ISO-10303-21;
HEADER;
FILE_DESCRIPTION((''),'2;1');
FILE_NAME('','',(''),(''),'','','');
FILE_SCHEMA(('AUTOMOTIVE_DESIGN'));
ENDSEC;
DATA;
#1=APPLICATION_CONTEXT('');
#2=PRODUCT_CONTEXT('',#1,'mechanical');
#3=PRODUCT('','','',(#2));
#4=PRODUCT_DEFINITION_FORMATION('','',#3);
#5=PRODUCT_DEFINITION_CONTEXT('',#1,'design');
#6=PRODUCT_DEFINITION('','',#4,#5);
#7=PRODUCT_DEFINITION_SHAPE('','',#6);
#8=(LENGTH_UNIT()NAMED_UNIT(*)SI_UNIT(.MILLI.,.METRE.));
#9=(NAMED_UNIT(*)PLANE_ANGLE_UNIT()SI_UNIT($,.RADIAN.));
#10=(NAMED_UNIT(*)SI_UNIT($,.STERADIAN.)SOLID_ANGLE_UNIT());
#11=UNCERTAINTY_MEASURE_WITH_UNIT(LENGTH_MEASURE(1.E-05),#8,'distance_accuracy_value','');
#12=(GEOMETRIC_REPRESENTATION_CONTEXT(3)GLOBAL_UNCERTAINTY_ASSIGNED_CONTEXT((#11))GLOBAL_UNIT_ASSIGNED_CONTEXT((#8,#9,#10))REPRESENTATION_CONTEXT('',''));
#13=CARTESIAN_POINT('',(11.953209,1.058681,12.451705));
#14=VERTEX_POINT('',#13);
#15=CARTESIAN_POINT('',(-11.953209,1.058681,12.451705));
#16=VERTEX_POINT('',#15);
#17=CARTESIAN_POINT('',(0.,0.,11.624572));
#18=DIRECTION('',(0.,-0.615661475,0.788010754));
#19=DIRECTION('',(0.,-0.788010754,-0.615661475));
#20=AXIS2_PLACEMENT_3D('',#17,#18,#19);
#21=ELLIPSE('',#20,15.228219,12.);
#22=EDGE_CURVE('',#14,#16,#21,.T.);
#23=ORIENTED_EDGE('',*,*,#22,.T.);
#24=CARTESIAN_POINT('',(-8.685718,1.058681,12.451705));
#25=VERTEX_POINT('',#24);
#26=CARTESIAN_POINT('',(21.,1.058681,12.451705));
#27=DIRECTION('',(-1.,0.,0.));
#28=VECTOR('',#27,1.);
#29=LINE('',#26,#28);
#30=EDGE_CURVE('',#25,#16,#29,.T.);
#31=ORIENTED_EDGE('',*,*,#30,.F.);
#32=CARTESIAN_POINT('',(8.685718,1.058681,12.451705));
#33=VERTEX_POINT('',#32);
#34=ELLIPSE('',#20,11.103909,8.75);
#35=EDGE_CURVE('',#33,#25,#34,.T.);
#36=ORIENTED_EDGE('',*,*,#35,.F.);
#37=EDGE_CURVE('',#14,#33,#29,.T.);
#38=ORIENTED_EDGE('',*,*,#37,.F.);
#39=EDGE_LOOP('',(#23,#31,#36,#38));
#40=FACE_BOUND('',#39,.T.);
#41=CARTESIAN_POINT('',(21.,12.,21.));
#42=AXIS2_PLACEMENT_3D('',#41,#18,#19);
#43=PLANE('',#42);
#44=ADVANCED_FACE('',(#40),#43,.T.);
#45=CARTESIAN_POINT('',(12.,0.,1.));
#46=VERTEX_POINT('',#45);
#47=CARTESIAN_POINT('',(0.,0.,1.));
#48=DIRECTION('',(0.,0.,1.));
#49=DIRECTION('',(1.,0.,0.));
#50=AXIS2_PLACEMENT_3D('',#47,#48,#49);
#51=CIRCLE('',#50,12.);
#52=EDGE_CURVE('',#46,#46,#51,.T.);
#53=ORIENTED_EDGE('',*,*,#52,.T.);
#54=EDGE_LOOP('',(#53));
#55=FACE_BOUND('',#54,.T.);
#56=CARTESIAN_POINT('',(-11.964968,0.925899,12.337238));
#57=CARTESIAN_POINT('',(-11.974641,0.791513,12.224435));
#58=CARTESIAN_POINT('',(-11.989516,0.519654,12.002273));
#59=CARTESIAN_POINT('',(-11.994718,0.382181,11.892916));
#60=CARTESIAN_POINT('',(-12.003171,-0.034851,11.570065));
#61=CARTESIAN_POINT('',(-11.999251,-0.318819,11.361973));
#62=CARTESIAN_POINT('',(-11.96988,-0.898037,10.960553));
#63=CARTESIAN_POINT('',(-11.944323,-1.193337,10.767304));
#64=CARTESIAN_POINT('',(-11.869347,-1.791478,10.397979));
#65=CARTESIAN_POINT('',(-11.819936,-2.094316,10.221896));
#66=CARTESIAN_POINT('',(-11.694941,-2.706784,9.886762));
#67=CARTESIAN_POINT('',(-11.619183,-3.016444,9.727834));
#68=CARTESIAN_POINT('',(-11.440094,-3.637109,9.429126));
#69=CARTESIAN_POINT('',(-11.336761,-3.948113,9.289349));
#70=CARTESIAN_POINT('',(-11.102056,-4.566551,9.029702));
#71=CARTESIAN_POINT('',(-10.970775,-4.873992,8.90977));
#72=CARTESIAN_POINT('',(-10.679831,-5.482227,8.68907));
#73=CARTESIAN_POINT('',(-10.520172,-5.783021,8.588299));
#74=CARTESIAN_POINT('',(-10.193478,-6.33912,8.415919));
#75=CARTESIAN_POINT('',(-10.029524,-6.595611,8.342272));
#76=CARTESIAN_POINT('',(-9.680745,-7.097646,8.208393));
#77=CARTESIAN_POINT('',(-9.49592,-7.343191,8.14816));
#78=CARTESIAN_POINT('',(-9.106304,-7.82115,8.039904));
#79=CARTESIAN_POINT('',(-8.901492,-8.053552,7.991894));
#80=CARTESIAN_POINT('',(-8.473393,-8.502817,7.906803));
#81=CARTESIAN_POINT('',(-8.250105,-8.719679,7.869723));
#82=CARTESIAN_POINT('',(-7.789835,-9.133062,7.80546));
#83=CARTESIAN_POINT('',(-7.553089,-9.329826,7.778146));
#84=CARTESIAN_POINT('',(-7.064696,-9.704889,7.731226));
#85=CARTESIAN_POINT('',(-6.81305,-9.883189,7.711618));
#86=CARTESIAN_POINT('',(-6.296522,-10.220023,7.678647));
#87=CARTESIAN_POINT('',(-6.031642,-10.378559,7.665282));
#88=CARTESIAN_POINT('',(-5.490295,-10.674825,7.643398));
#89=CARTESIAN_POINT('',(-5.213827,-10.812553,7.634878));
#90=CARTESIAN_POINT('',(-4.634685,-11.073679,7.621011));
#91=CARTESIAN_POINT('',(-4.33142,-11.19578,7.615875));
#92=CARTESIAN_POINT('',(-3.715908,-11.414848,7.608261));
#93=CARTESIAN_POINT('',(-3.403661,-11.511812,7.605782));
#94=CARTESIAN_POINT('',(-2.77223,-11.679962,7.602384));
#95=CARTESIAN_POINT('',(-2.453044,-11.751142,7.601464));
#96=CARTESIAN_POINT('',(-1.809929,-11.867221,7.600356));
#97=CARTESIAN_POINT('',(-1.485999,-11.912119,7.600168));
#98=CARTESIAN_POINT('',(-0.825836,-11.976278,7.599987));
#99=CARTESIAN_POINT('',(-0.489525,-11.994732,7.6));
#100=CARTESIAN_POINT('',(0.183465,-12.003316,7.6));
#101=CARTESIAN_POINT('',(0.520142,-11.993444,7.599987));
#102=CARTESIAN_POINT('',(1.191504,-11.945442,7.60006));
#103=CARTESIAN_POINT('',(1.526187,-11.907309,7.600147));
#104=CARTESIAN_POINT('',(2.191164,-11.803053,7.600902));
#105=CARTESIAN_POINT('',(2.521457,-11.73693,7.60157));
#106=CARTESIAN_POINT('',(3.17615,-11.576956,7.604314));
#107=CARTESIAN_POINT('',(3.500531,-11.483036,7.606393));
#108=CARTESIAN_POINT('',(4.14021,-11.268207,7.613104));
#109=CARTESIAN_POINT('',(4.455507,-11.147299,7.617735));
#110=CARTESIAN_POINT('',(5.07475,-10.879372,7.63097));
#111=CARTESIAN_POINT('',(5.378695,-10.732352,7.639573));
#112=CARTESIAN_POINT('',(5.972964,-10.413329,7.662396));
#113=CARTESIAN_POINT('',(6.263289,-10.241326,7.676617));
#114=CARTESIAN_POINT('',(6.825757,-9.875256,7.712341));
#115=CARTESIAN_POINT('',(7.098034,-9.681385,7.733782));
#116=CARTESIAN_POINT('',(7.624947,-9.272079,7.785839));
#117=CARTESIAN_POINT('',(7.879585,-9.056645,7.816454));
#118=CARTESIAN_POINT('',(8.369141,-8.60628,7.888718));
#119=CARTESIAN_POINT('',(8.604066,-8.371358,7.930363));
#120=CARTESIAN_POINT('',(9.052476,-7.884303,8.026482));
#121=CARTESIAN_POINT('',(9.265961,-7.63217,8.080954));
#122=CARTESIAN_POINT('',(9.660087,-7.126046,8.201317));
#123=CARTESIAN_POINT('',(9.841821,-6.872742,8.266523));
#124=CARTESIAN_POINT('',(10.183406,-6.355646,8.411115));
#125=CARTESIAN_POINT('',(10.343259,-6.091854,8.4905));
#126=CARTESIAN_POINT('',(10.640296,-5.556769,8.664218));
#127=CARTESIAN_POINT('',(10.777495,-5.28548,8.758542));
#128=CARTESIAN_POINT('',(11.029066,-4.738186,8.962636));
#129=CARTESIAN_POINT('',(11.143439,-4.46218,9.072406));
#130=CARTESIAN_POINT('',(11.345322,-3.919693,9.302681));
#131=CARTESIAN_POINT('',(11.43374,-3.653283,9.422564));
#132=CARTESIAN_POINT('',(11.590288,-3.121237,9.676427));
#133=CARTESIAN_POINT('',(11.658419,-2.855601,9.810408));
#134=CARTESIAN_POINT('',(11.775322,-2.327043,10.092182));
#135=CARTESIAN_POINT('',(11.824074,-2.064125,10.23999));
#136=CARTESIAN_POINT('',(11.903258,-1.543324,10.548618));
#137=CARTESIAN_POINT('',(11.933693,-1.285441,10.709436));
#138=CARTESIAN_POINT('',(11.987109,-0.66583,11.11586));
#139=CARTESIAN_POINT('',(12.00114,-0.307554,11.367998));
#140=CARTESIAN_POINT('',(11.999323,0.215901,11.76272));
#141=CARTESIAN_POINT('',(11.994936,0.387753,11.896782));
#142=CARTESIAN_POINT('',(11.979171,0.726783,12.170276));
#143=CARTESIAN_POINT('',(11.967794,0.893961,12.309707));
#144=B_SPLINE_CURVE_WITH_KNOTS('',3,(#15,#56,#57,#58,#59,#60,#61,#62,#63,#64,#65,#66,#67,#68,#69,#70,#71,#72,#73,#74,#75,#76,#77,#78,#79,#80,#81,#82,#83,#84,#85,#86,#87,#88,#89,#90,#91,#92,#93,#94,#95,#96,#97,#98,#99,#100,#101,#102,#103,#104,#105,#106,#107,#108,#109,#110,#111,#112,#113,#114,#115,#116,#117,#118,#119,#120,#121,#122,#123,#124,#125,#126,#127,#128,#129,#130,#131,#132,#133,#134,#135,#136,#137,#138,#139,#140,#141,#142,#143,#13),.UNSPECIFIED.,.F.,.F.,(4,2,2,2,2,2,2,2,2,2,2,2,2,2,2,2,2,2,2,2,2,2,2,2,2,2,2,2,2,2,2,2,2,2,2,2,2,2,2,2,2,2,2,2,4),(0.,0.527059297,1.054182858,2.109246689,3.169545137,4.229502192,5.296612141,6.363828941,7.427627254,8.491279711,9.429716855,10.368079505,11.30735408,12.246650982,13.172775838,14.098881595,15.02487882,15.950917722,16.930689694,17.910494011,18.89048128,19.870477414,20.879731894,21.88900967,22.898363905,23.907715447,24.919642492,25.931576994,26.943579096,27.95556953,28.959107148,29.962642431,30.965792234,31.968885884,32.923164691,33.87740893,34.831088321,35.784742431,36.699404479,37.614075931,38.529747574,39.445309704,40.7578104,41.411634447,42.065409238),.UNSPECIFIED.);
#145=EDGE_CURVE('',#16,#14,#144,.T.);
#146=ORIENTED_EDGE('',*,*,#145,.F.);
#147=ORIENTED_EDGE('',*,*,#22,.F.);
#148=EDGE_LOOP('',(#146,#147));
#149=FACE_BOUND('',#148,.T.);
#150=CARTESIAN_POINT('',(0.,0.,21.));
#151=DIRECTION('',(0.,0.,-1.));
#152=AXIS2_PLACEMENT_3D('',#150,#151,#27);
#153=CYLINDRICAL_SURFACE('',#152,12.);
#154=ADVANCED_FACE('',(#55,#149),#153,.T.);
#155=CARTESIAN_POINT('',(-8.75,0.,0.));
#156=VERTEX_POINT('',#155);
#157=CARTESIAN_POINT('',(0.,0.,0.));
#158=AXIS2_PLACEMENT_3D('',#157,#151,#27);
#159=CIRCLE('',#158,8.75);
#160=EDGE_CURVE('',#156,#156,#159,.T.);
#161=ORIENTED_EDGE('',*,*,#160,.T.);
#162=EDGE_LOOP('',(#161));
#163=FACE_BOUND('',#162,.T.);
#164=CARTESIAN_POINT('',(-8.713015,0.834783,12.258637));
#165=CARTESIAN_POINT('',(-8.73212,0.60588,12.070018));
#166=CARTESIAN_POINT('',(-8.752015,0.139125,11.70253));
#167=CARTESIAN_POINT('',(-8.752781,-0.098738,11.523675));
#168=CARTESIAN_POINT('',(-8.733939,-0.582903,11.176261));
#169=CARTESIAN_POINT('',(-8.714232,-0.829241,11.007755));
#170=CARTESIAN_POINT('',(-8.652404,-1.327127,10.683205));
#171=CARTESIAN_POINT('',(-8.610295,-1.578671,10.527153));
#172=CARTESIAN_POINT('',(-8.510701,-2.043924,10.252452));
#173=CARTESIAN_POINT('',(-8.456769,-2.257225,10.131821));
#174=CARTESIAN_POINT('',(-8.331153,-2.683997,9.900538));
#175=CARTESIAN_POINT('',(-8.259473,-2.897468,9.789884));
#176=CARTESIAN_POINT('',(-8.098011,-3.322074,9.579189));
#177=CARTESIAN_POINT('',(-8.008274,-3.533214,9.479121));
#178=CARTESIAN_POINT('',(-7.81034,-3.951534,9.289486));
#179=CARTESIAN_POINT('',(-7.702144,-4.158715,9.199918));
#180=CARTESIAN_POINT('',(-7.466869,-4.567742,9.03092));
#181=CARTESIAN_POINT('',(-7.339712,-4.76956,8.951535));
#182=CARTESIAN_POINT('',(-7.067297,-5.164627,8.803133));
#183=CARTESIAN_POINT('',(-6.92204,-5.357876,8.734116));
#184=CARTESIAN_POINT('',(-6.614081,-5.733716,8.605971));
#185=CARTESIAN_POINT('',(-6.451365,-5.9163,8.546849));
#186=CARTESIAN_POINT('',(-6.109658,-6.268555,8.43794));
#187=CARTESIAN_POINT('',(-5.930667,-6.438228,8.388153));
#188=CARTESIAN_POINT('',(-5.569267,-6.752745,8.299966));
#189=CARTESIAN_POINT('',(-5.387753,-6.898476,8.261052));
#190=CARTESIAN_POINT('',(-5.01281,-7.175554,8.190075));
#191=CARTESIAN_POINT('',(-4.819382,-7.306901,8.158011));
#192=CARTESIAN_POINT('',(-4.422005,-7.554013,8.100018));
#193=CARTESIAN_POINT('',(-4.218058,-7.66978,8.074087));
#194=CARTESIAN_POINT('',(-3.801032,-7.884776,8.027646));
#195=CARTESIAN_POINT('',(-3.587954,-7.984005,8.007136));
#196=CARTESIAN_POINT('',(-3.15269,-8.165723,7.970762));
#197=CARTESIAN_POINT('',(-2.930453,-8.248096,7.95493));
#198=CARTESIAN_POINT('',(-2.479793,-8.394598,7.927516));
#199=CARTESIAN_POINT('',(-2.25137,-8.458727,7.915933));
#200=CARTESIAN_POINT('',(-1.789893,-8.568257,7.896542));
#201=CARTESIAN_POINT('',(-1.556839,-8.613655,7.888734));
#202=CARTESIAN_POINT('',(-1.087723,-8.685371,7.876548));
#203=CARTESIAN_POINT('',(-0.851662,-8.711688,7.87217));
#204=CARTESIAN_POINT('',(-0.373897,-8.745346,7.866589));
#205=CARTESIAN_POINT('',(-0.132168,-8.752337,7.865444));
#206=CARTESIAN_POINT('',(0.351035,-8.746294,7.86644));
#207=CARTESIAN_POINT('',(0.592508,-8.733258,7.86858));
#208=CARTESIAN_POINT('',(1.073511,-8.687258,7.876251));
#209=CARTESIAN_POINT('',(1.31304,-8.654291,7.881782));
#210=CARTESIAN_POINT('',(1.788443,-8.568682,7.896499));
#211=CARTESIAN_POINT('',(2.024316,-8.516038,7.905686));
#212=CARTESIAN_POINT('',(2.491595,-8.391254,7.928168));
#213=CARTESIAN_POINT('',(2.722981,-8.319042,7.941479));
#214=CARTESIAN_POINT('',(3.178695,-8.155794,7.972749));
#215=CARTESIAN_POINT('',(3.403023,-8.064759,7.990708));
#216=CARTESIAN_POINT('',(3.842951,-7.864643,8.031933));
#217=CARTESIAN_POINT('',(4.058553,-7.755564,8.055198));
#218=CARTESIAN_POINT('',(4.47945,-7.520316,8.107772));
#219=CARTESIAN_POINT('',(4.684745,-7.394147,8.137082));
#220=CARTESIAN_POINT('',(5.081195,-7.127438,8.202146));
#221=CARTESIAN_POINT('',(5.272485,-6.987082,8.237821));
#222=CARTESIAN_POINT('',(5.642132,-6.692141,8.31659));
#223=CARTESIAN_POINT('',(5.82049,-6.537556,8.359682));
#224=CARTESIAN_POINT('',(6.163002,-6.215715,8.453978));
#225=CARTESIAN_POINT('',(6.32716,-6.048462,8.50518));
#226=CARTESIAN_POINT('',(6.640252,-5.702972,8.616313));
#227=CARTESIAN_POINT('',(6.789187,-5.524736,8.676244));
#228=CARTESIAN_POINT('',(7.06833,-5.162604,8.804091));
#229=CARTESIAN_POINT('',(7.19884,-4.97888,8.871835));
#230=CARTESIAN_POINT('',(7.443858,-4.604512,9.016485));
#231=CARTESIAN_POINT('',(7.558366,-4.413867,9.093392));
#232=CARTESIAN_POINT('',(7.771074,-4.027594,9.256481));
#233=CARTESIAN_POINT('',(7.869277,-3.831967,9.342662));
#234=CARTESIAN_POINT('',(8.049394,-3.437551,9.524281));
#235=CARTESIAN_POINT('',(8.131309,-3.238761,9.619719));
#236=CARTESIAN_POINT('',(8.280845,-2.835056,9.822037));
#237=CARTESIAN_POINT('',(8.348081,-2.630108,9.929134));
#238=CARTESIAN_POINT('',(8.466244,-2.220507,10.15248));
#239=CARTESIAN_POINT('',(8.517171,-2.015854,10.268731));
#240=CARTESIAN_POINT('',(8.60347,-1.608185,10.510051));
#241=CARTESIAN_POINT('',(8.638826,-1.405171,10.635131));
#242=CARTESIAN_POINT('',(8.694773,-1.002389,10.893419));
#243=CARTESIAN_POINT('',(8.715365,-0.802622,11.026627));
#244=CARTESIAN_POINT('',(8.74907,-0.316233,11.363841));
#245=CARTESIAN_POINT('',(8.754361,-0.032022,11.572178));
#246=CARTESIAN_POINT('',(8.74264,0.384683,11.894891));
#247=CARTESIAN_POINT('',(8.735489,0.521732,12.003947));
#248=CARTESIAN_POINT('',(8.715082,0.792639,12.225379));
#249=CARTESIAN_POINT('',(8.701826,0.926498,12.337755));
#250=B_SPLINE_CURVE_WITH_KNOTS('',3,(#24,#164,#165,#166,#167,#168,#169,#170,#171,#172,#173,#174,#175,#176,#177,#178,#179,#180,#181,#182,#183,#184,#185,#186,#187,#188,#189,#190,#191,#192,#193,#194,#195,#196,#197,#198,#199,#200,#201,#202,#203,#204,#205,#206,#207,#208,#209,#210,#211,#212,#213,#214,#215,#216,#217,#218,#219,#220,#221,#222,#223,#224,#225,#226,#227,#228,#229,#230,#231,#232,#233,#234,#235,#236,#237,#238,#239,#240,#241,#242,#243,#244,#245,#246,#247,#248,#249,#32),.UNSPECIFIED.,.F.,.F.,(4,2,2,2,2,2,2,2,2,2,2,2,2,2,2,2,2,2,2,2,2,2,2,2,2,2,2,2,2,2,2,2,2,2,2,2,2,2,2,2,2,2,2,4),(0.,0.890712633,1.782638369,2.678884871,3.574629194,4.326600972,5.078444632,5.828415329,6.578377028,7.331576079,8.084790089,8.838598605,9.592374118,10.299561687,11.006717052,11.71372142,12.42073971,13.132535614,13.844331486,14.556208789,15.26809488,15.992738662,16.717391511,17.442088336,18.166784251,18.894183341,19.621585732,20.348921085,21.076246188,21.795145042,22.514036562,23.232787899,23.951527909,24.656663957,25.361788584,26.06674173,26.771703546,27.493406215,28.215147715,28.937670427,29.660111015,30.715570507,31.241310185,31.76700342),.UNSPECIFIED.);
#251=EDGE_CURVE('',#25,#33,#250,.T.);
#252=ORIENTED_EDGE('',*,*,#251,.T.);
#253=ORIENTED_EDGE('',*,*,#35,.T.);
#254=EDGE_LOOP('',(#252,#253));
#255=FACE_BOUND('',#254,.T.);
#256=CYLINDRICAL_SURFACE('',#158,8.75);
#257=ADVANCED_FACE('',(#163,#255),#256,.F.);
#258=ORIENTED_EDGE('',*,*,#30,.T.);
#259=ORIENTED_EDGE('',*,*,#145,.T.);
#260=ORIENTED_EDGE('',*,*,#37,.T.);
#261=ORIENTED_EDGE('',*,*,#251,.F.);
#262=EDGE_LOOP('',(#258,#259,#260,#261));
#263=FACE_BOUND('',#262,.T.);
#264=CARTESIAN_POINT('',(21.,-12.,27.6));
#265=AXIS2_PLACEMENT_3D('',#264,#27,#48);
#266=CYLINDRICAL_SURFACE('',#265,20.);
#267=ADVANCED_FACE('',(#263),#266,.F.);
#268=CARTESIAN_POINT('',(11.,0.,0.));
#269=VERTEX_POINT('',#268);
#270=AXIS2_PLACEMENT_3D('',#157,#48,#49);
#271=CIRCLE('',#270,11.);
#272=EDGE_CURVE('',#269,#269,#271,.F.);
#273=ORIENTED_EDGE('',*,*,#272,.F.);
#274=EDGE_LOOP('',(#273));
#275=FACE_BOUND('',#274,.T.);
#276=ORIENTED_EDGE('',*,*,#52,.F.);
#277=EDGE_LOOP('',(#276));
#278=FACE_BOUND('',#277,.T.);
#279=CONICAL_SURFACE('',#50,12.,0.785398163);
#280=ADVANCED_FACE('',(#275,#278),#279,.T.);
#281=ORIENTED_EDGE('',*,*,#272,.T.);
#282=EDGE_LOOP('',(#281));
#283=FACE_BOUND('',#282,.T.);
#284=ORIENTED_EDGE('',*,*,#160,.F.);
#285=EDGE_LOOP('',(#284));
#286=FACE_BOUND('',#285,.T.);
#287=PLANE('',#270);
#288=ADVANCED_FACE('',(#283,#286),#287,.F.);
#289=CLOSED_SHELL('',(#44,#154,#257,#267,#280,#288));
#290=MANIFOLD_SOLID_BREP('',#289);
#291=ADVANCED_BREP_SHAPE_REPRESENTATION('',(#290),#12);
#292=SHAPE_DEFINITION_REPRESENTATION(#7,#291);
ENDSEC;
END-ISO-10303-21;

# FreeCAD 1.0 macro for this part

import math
import FreeCAD as App
import Part
import Sketcher

V = App.Vector
Q = App.Units.Quantity


def edges_at(feature, points):
    """Names of the edges that pass closest to the given points."""
    edges = feature.Shape.Edges
    near = lambda p: min(range(len(edges)), key=lambda i: edges[i].distToShape(Part.Vertex(*p))[0])
    return sorted({f"Edge{near(p) + 1}" for p in points})

doc = App.newDocument("Part")
body = doc.addObject("PartDesign::Body", "Body")

# Sketch on XY plane
sketch1 = body.newObject("Sketcher::SketchObject", "Sketch")
sketch1.AttachmentSupport = (doc.getObject("XY_Plane"), [""])
sketch1.MapMode = "FlatFace"
sketch1.addGeometry(Part.Circle(V(0, 0, 0), V(0, 0, 1), 12), False)
sketch1.addConstraint([
    Sketcher.Constraint("Coincident", 0, 3, -1, 1),
    Sketcher.Constraint("Diameter", 0, Q("24 mm")),
])
pad1 = body.newObject("PartDesign::Pad", "Pad")
pad1.Profile = sketch1
pad1.Length = 21

# Sketch on YZ plane
sketch2 = body.newObject("Sketcher::SketchObject", "Sketch001")
sketch2.AttachmentSupport = (doc.getObject("YZ_Plane"), [""])
sketch2.MapMode = "FlatFace"
sketch2.addGeometry([
    Part.LineSegment(V(1.058681, 12.451705, 0), V(12, 21, 0)),
    Part.LineSegment(V(12, 21, 0), V(-12, 21, 0)),
    Part.LineSegment(V(-12, 21, 0), V(-12, 7.6, 0)),
    Part.ArcOfCircle(Part.Circle(V(-12, 27.6, 0), V(0, 0, 1), 20), math.radians(-90), math.radians(-49.236815)),
], False)
sketch2.addConstraint([
    Sketcher.Constraint("Coincident", 0, 2, 1, 1),
    Sketcher.Constraint("Coincident", 1, 2, 2, 1),
    Sketcher.Constraint("Coincident", 2, 2, 3, 1),
    Sketcher.Constraint("Coincident", 3, 2, 0, 1),
    Sketcher.Constraint("Horizontal", 1),
    Sketcher.Constraint("Vertical", 2),
    Sketcher.Constraint("Vertical", 3, 3, 1, 2),
    Sketcher.Constraint("Radius", 3, Q("20 mm")),
    Sketcher.Constraint("DistanceX", 1, 2, 1, 1, Q("24 mm")),
    Sketcher.Constraint("Angle", 0, Q("38 deg")),
    Sketcher.Constraint("DistanceY", 2, 2, 2, 1, Q("13.4 mm")),
    Sketcher.Constraint("DistanceX", 3, 3, -1, 1, Q("12 mm")),
    Sketcher.Constraint("DistanceY", -1, 1, 0, 2, Q("21 mm")),
])
pocket1 = body.newObject("PartDesign::Pocket", "Pocket")
pocket1.Profile = sketch2
pocket1.Type = "ThroughAll"
pocket1.Midplane = True

# Sketch on XY plane
sketch3 = body.newObject("Sketcher::SketchObject", "Sketch002")
sketch3.AttachmentSupport = (doc.getObject("XY_Plane"), [""])
sketch3.MapMode = "FlatFace"
sketch3.addGeometry(Part.Circle(V(0, 0, 0), V(0, 0, 1), 8.75), False)
sketch3.addConstraint([
    Sketcher.Constraint("Coincident", 0, 3, -1, 1),
    Sketcher.Constraint("Diameter", 0, Q("17.5 mm")),
])
doc.recompute()
hole = body.newObject("PartDesign::Hole", "Hole")
hole.Profile = sketch3
hole.ThreadType = "None"
hole.Diameter = 17.5
hole.DepthType = "ThroughAll"
hole.Reversed = True
doc.recompute()

chamfer = body.newObject("PartDesign::Chamfer", "Chamfer")
chamfer.Base = (hole, edges_at(hole, [(12, 0, 0)]))
chamfer.Size = 1

doc.recompute()
